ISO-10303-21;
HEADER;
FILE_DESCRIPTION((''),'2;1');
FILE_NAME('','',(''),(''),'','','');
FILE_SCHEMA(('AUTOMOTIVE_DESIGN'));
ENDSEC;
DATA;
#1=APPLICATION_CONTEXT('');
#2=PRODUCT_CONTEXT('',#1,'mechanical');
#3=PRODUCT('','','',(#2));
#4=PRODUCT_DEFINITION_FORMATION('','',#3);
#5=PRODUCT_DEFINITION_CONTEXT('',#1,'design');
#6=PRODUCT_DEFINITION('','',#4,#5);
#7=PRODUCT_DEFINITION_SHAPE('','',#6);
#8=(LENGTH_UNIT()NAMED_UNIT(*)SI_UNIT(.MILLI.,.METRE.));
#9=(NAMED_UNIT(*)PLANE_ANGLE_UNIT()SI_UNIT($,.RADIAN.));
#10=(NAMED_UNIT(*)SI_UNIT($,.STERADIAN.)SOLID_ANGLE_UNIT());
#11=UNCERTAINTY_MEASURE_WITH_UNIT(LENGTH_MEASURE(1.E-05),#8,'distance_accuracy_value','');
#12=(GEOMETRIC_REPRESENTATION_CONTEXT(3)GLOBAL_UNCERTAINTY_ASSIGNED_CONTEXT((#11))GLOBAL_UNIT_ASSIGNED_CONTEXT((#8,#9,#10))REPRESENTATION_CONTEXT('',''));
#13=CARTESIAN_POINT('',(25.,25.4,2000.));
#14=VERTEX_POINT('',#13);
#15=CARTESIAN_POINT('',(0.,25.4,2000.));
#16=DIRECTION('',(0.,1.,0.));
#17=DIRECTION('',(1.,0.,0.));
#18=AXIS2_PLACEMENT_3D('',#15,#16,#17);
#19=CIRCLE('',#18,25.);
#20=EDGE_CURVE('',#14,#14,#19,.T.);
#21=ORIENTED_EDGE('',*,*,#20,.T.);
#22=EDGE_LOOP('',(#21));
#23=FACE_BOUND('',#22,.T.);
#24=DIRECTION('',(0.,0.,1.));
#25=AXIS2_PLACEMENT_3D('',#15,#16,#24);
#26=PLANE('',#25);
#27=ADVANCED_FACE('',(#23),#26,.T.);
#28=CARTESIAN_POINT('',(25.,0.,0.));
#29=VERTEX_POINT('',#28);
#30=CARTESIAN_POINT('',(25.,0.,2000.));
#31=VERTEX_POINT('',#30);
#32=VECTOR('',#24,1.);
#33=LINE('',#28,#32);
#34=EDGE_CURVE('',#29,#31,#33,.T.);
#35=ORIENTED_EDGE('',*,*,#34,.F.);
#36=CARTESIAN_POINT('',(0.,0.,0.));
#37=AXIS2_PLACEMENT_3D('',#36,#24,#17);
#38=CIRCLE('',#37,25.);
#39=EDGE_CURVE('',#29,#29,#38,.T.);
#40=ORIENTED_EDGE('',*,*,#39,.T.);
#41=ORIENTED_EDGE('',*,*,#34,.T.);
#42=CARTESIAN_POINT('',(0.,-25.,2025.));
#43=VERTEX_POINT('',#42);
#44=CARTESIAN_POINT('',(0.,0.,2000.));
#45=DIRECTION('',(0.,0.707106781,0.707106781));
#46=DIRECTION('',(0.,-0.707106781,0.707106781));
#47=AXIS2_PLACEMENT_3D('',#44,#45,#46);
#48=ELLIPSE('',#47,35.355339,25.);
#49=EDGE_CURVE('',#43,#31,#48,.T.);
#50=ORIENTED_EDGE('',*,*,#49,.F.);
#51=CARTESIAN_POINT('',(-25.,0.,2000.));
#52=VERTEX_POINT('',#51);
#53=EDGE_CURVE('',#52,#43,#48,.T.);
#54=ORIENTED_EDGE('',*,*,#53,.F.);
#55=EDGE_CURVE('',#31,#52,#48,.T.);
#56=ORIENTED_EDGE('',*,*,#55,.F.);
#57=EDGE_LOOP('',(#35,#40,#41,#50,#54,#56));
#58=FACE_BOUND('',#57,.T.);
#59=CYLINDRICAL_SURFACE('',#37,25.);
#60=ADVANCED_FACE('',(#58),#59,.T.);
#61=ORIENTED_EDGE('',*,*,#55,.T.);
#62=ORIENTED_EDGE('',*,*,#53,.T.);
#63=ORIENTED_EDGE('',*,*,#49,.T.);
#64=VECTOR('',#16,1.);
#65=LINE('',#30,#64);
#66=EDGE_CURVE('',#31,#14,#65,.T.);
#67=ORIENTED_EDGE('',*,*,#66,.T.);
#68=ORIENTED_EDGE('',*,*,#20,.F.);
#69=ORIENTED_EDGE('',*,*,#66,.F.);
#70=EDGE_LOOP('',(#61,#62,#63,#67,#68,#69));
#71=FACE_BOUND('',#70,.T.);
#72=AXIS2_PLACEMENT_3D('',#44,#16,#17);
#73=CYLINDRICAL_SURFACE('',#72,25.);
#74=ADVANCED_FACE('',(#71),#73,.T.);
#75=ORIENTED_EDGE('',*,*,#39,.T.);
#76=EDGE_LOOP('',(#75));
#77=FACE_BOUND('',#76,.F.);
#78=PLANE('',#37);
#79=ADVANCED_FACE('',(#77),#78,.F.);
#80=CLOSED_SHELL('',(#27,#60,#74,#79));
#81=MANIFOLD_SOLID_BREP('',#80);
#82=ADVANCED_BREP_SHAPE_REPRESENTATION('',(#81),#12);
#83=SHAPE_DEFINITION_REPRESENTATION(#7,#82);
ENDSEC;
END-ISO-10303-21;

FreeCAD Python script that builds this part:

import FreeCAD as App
import Part
import Sketcher
Q = App.Units.Quantity

doc = App.newDocument("Part")
body = doc.addObject("PartDesign::Body", "Body")

# Sketch on XY plane
sketch1 = body.newObject("Sketcher::SketchObject", "Sketch")
sketch1.AttachmentSupport = (doc.getObject("XY_Plane"), [""])
sketch1.MapMode = "FlatFace"
sketch1.addGeometry(Part.Circle(App.Vector(0, 0, 0), App.Vector(0, 0, 1), 25), False)
sketch1.addConstraint([
    Sketcher.Constraint("Coincident", 0, 3, -1, 1),
    Sketcher.Constraint("Diameter", 0, Q("50 mm")),
])

# Sketch on YZ plane
sketch2 = body.newObject("Sketcher::SketchObject", "Sketch001")
sketch2.AttachmentSupport = (doc.getObject("YZ_Plane"), [""])
sketch2.MapMode = "FlatFace"
sketch2.addGeometry([
    Part.LineSegment(App.Vector(0, 0, 0), App.Vector(0, 2000, 0)),
    Part.LineSegment(App.Vector(0, 2000, 0), App.Vector(25, 2000, 0)),
], False)
sketch2.addConstraint([
    Sketcher.Constraint("Coincident", 0, 2, 1, 1),
    Sketcher.Constraint("Vertical", 0),
    Sketcher.Constraint("Horizontal", 1),
    Sketcher.Constraint("Coincident", 0, 1, -1, 1),
    Sketcher.Constraint("DistanceY", 0, 1, 0, 2, Q("2000 mm")),
    Sketcher.Constraint("DistanceX", 1, 1, 1, 2, Q("25.4 mm")),
])
doc.recompute()

additivepipe = body.newObject("PartDesign::AdditivePipe", "AdditivePipe")
additivepipe.Profile = sketch1
additivepipe.Spine = (sketch2, ["Edge1", "Edge2"])
additivepipe.Transition = "Right corner"

doc.recompute()
